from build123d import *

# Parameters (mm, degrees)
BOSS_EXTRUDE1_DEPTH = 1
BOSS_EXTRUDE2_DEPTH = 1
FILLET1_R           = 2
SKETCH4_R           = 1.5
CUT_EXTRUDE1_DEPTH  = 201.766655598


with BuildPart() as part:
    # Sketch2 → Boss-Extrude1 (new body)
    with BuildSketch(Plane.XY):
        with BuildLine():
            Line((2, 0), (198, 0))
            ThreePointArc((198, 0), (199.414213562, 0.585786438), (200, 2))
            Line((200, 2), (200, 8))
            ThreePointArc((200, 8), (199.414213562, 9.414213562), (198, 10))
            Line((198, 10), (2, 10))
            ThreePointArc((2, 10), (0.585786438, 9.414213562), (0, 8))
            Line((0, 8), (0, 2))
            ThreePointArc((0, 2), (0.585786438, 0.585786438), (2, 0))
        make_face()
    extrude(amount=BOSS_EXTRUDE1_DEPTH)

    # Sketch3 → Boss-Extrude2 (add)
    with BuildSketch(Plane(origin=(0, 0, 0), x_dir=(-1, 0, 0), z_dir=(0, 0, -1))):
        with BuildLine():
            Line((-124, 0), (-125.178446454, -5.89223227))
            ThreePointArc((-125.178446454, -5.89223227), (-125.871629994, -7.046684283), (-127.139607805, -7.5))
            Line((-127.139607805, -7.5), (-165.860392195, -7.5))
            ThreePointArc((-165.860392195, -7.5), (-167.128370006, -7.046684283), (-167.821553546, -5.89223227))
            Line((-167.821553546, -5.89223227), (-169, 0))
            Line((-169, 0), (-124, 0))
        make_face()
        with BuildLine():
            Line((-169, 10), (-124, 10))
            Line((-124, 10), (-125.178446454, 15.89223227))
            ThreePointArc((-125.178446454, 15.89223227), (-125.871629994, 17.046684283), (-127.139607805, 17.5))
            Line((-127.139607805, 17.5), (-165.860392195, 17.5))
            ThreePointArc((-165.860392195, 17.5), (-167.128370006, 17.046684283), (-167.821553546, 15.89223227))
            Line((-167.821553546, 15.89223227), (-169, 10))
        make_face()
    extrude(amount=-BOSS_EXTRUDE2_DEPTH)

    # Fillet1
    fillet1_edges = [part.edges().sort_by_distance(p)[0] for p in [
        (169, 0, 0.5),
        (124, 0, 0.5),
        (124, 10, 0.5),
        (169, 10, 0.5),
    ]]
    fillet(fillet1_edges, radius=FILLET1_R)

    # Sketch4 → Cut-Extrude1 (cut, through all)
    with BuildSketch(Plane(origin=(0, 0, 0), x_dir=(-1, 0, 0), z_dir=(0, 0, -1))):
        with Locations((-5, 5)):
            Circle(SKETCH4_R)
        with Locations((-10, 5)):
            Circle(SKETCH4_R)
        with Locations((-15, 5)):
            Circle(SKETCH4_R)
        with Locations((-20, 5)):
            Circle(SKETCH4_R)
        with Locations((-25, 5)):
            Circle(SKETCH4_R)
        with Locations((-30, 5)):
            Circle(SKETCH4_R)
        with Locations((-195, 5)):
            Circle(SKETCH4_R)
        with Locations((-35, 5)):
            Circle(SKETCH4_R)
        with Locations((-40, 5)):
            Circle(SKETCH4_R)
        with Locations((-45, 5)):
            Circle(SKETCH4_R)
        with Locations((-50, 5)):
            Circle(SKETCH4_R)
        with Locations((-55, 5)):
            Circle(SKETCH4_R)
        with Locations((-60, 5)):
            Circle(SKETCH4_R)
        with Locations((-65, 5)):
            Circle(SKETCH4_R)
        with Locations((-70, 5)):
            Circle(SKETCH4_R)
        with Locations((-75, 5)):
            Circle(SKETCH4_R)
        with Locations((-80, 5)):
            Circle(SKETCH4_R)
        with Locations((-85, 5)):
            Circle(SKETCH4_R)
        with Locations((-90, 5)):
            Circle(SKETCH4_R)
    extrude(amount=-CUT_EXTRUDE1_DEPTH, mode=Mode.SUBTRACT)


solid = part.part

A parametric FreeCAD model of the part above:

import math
import FreeCAD as App
import Part
import Sketcher
from FreeCAD import Vector
Q = App.Units.Quantity


def edges_at(feature, points):
    """Names of the edges that pass closest to the given points."""
    edges = feature.Shape.Edges
    near = lambda p: min(range(len(edges)), key=lambda i: edges[i].distToShape(Part.Vertex(*p))[0])
    return sorted({f"Edge{near(p) + 1}" for p in points})

doc = App.newDocument("Part")
body = doc.addObject("PartDesign::Body", "Body")

# Sketch on XY plane
sketch1 = doc.addObject("Sketcher::SketchObject", "Sketch")
body.addObject(sketch1)
sketch1.AttachmentSupport = (doc.XY_Plane, [""])
sketch1.MapMode = "FlatFace"
sketch1.addGeometry(Part.LineSegment(Vector(2, 0, 0), Vector(198, 0, 0)), False)
sketch1.addGeometry(Part.ArcOfCircle(Part.Circle(Vector(198, 2, 0), Vector(0, 0, 1), 2), math.radians(-90), math.radians(0)), False)
sketch1.addGeometry(Part.LineSegment(Vector(200, 2, 0), Vector(200, 8, 0)), False)
sketch1.addGeometry(Part.ArcOfCircle(Part.Circle(Vector(198, 8, 0), Vector(0, 0, 1), 2), math.radians(0), math.radians(90)), False)
sketch1.addGeometry(Part.LineSegment(Vector(198, 10, 0), Vector(2, 10, 0)), False)
sketch1.addGeometry(Part.ArcOfCircle(Part.Circle(Vector(2, 8, 0), Vector(0, 0, 1), 2), math.radians(90), math.radians(180)), False)
sketch1.addGeometry(Part.LineSegment(Vector(0, 8, 0), Vector(0, 2, 0)), False)
sketch1.addGeometry(Part.ArcOfCircle(Part.Circle(Vector(2, 2, 0), Vector(0, 0, 1), 2), math.radians(-180), math.radians(-90)), False)
sketch1.addConstraint(Sketcher.Constraint("Tangent", 0, 2, 1, 1))
sketch1.addConstraint(Sketcher.Constraint("Tangent", 1, 2, 2, 1))
sketch1.addConstraint(Sketcher.Constraint("Tangent", 2, 2, 3, 1))
sketch1.addConstraint(Sketcher.Constraint("Tangent", 3, 2, 4, 1))
sketch1.addConstraint(Sketcher.Constraint("Tangent", 4, 2, 5, 1))
sketch1.addConstraint(Sketcher.Constraint("Tangent", 5, 2, 6, 1))
sketch1.addConstraint(Sketcher.Constraint("Tangent", 6, 2, 7, 1))
sketch1.addConstraint(Sketcher.Constraint("Tangent", 7, 2, 0, 1))
sketch1.addConstraint(Sketcher.Constraint("Horizontal", 0))
sketch1.addConstraint(Sketcher.Constraint("Vertical", 2))
sketch1.addConstraint(Sketcher.Constraint("Horizontal", 4))
sketch1.addConstraint(Sketcher.Constraint("Vertical", 6))
sketch1.addConstraint(Sketcher.Constraint("Equal", 1, 3))
sketch1.addConstraint(Sketcher.Constraint("Equal", 3, 5))
sketch1.addConstraint(Sketcher.Constraint("Equal", 5, 7))
sketch1.addConstraint(Sketcher.Constraint("PointOnObject", 0, 2, -1))
sketch1.addConstraint(Sketcher.Constraint("PointOnObject", 5, 2, -2))
sketch1.addConstraint(Sketcher.Constraint("Radius", 1, Q("2 mm")))
sketch1.addConstraint(Sketcher.Constraint("DistanceX", 0, 1, 0, 2, Q("196 mm")))
sketch1.addConstraint(Sketcher.Constraint("DistanceY", 2, 1, 2, 2, Q("6 mm")))
pad1 = doc.addObject("PartDesign::Pad", "Pad")
body.addObject(pad1)
pad1.Profile = sketch1
pad1.Length = 1

# Sketch on XY plane
sketch2 = doc.addObject("Sketcher::SketchObject", "Sketch001")
body.addObject(sketch2)
sketch2.AttachmentSupport = (doc.XY_Plane, [""])
sketch2.MapMode = "FlatFace"
sketch2.addGeometry(Part.LineSegment(Vector(125.2, -5.9, 0), Vector(124, 0, 0)), False)
sketch2.addGeometry(Part.LineSegment(Vector(124, 0, 0), Vector(169, 0, 0)), False)
sketch2.addGeometry(Part.LineSegment(Vector(169, 0, 0), Vector(167.8, -5.9, 0)), False)
sketch2.addGeometry(Part.ArcOfCircle(Part.Circle(Vector(165.9, -5.5, 0), Vector(0, 0, 1), 2), math.radians(-90), math.radians(-11)), False)
sketch2.addGeometry(Part.LineSegment(Vector(165.9, -7.5, 0), Vector(127.1, -7.5, 0)), False)
sketch2.addGeometry(Part.ArcOfCircle(Part.Circle(Vector(127.1, -5.5, 0), Vector(0, 0, 1), 2), math.radians(-169), math.radians(-90)), False)
sketch2.addGeometry(Part.LineSegment(Vector(169, 10, 0), Vector(124, 10, 0)), False)
sketch2.addGeometry(Part.LineSegment(Vector(124, 10, 0), Vector(125.2, 15.9, 0)), False)
sketch2.addGeometry(Part.ArcOfCircle(Part.Circle(Vector(127.1, 15.5, 0), Vector(0, 0, 1), 2), math.radians(90), math.radians(169)), False)
sketch2.addGeometry(Part.LineSegment(Vector(127.1, 17.5, 0), Vector(165.9, 17.5, 0)), False)
sketch2.addGeometry(Part.ArcOfCircle(Part.Circle(Vector(165.9, 15.5, 0), Vector(0, 0, 1), 2), math.radians(11), math.radians(90)), False)
sketch2.addGeometry(Part.LineSegment(Vector(167.8, 15.9, 0), Vector(169, 10, 0)), False)
sketch2.addConstraint(Sketcher.Constraint("Coincident", 0, 2, 1, 1))
sketch2.addConstraint(Sketcher.Constraint("Coincident", 1, 2, 2, 1))
sketch2.addConstraint(Sketcher.Constraint("Tangent", 2, 2, 3, 2))
sketch2.addConstraint(Sketcher.Constraint("Tangent", 3, 1, 4, 1))
sketch2.addConstraint(Sketcher.Constraint("Tangent", 4, 2, 5, 2))
sketch2.addConstraint(Sketcher.Constraint("Tangent", 5, 1, 0, 1))
sketch2.addConstraint(Sketcher.Constraint("Coincident", 6, 2, 7, 1))
sketch2.addConstraint(Sketcher.Constraint("Tangent", 7, 2, 8, 2))
sketch2.addConstraint(Sketcher.Constraint("Tangent", 8, 1, 9, 1))
sketch2.addConstraint(Sketcher.Constraint("Tangent", 9, 2, 10, 2))
sketch2.addConstraint(Sketcher.Constraint("Tangent", 10, 1, 11, 1))
sketch2.addConstraint(Sketcher.Constraint("Coincident", 11, 2, 6, 1))
sketch2.addConstraint(Sketcher.Constraint("Horizontal", 1))
sketch2.addConstraint(Sketcher.Constraint("Horizontal", 4))
sketch2.addConstraint(Sketcher.Constraint("Horizontal", 6))
sketch2.addConstraint(Sketcher.Constraint("Horizontal", 9))
sketch2.addConstraint(Sketcher.Constraint("Equal", 3, 5))
sketch2.addConstraint(Sketcher.Constraint("Equal", 5, 8))
sketch2.addConstraint(Sketcher.Constraint("Equal", 8, 10))
sketch2.addConstraint(Sketcher.Constraint("PointOnObject", 0, 2, -1))
sketch2.addConstraint(Sketcher.Constraint("Parallel", 2, 7))
sketch2.addConstraint(Sketcher.Constraint("Parallel", 0, 11))
sketch2.addConstraint(Sketcher.Constraint("Horizontal", 2, 2, 5, 1))
sketch2.addConstraint(Sketcher.Constraint("Vertical", 5, 3, 8, 3))
sketch2.addConstraint(Sketcher.Constraint("Vertical", 3, 3, 10, 3))
sketch2.addConstraint(Sketcher.Constraint("Vertical", 0, 2, 6, 2))
sketch2.addConstraint(Sketcher.Constraint("Radius", 3, Q("2 mm")))
sketch2.addConstraint(Sketcher.Constraint("DistanceX", 1, 1, 1, 2, Q("45 mm")))
sketch2.addConstraint(Sketcher.Constraint("DistanceX", -1, 1, 0, 2, Q("124 mm")))
sketch2.addConstraint(Sketcher.Constraint("DistanceY", -1, 1, 6, 2, Q("10 mm")))
sketch2.addConstraint(Sketcher.Constraint("DistanceY", 5, 3, 8, 3, Q("21 mm")))
sketch2.addConstraint(Sketcher.Constraint("Distance", 0, Q("6.008921 mm")))
pad2 = doc.addObject("PartDesign::Pad", "Pad001")
body.addObject(pad2)
pad2.Profile = sketch2
pad2.Length = 1
doc.recompute()

fillet = doc.addObject("PartDesign::Fillet", "Fillet")
body.addObject(fillet)
fillet.Base = (pad2, edges_at(pad2, [
    (169, 0, 0.5),
    (124, 0, 0.5),
    (124, 10, 0.5),
    (169, 10, 0.5),
]))
fillet.Radius = 2

# Sketch on XY plane
sketch3 = doc.addObject("Sketcher::SketchObject", "Sketch002")
body.addObject(sketch3)
sketch3.AttachmentSupport = (doc.XY_Plane, [""])
sketch3.MapMode = "FlatFace"
sketch3.addGeometry(Part.Circle(Vector(5, 5, 0), Vector(0, 0, 1), 1.5), False)
sketch3.addGeometry(Part.Circle(Vector(10, 5, 0), Vector(0, 0, 1), 1.5), False)
sketch3.addGeometry(Part.Circle(Vector(15, 5, 0), Vector(0, 0, 1), 1.5), False)
sketch3.addGeometry(Part.Circle(Vector(20, 5, 0), Vector(0, 0, 1), 1.5), False)
sketch3.addGeometry(Part.Circle(Vector(25, 5, 0), Vector(0, 0, 1), 1.5), False)
sketch3.addGeometry(Part.Circle(Vector(30, 5, 0), Vector(0, 0, 1), 1.5), False)
sketch3.addGeometry(Part.Circle(Vector(195, 5, 0), Vector(0, 0, 1), 1.5), False)
sketch3.addGeometry(Part.Circle(Vector(35, 5, 0), Vector(0, 0, 1), 1.5), False)
sketch3.addGeometry(Part.Circle(Vector(40, 5, 0), Vector(0, 0, 1), 1.5), False)
sketch3.addGeometry(Part.Circle(Vector(45, 5, 0), Vector(0, 0, 1), 1.5), False)
sketch3.addGeometry(Part.Circle(Vector(50, 5, 0), Vector(0, 0, 1), 1.5), False)
sketch3.addGeometry(Part.Circle(Vector(55, 5, 0), Vector(0, 0, 1), 1.5), False)
sketch3.addGeometry(Part.Circle(Vector(60, 5, 0), Vector(0, 0, 1), 1.5), False)
sketch3.addGeometry(Part.Circle(Vector(65, 5, 0), Vector(0, 0, 1), 1.5), False)
sketch3.addGeometry(Part.Circle(Vector(70, 5, 0), Vector(0, 0, 1), 1.5), False)
sketch3.addGeometry(Part.Circle(Vector(75, 5, 0), Vector(0, 0, 1), 1.5), False)
sketch3.addGeometry(Part.Circle(Vector(80, 5, 0), Vector(0, 0, 1), 1.5), False)
sketch3.addGeometry(Part.Circle(Vector(85, 5, 0), Vector(0, 0, 1), 1.5), False)
sketch3.addGeometry(Part.Circle(Vector(90, 5, 0), Vector(0, 0, 1), 1.5), False)
sketch3.addConstraint(Sketcher.Constraint("Equal", 0, 1))
sketch3.addConstraint(Sketcher.Constraint("Equal", 1, 2))
sketch3.addConstraint(Sketcher.Constraint("Equal", 2, 3))
sketch3.addConstraint(Sketcher.Constraint("Equal", 3, 4))
sketch3.addConstraint(Sketcher.Constraint("Equal", 4, 5))
sketch3.addConstraint(Sketcher.Constraint("Equal", 5, 6))
sketch3.addConstraint(Sketcher.Constraint("Equal", 6, 7))
sketch3.addConstraint(Sketcher.Constraint("Equal", 7, 8))
sketch3.addConstraint(Sketcher.Constraint("Equal", 8, 9))
sketch3.addConstraint(Sketcher.Constraint("Equal", 9, 10))
sketch3.addConstraint(Sketcher.Constraint("Equal", 10, 11))
sketch3.addConstraint(Sketcher.Constraint("Equal", 11, 12))
sketch3.addConstraint(Sketcher.Constraint("Equal", 12, 13))
sketch3.addConstraint(Sketcher.Constraint("Equal", 13, 14))
sketch3.addConstraint(Sketcher.Constraint("Equal", 14, 15))
sketch3.addConstraint(Sketcher.Constraint("Equal", 15, 16))
sketch3.addConstraint(Sketcher.Constraint("Equal", 16, 17))
sketch3.addConstraint(Sketcher.Constraint("Equal", 17, 18))
sketch3.addConstraint(Sketcher.Constraint("Horizontal", 0, 3, 1, 3))
sketch3.addConstraint(Sketcher.Constraint("Horizontal", 1, 3, 2, 3))
sketch3.addConstraint(Sketcher.Constraint("Horizontal", 2, 3, 3, 3))
sketch3.addConstraint(Sketcher.Constraint("Horizontal", 3, 3, 4, 3))
sketch3.addConstraint(Sketcher.Constraint("Horizontal", 4, 3, 5, 3))
sketch3.addConstraint(Sketcher.Constraint("Horizontal", 5, 3, 6, 3))
sketch3.addConstraint(Sketcher.Constraint("Horizontal", 6, 3, 7, 3))
sketch3.addConstraint(Sketcher.Constraint("Horizontal", 7, 3, 8, 3))
sketch3.addConstraint(Sketcher.Constraint("Horizontal", 8, 3, 9, 3))
sketch3.addConstraint(Sketcher.Constraint("Horizontal", 9, 3, 10, 3))
sketch3.addConstraint(Sketcher.Constraint("Horizontal", 10, 3, 11, 3))
sketch3.addConstraint(Sketcher.Constraint("Horizontal", 11, 3, 12, 3))
sketch3.addConstraint(Sketcher.Constraint("Horizontal", 12, 3, 13, 3))
sketch3.addConstraint(Sketcher.Constraint("Horizontal", 13, 3, 14, 3))
sketch3.addConstraint(Sketcher.Constraint("Horizontal", 14, 3, 15, 3))
sketch3.addConstraint(Sketcher.Constraint("Horizontal", 15, 3, 16, 3))
sketch3.addConstraint(Sketcher.Constraint("Horizontal", 16, 3, 17, 3))
sketch3.addConstraint(Sketcher.Constraint("Horizontal", 17, 3, 18, 3))
sketch3.addConstraint(Sketcher.Constraint("Diameter", 0, Q("3 mm")))
sketch3.addConstraint(Sketcher.Constraint("DistanceX", -1, 1, 0, 3, Q("5 mm")))
sketch3.addConstraint(Sketcher.Constraint("DistanceY", -1, 1, 0, 3, Q("5 mm")))
sketch3.addConstraint(Sketcher.Constraint("DistanceX", -1, 1, 1, 3, Q("10 mm")))
sketch3.addConstraint(Sketcher.Constraint("DistanceX", -1, 1, 2, 3, Q("15 mm")))
sketch3.addConstraint(Sketcher.Constraint("DistanceX", -1, 1, 3, 3, Q("20 mm")))
sketch3.addConstraint(Sketcher.Constraint("DistanceX", -1, 1, 4, 3, Q("25 mm")))
sketch3.addConstraint(Sketcher.Constraint("DistanceX", -1, 1, 5, 3, Q("30 mm")))
sketch3.addConstraint(Sketcher.Constraint("DistanceX", -1, 1, 6, 3, Q("195 mm")))
sketch3.addConstraint(Sketcher.Constraint("DistanceX", -1, 1, 7, 3, Q("35 mm")))
sketch3.addConstraint(Sketcher.Constraint("DistanceX", -1, 1, 8, 3, Q("40 mm")))
sketch3.addConstraint(Sketcher.Constraint("DistanceX", -1, 1, 9, 3, Q("45 mm")))
sketch3.addConstraint(Sketcher.Constraint("DistanceX", -1, 1, 10, 3, Q("50 mm")))
sketch3.addConstraint(Sketcher.Constraint("DistanceX", -1, 1, 11, 3, Q("55 mm")))
sketch3.addConstraint(Sketcher.Constraint("DistanceX", -1, 1, 12, 3, Q("60 mm")))
sketch3.addConstraint(Sketcher.Constraint("DistanceX", -1, 1, 13, 3, Q("65 mm")))
sketch3.addConstraint(Sketcher.Constraint("DistanceX", -1, 1, 14, 3, Q("70 mm")))
sketch3.addConstraint(Sketcher.Constraint("DistanceX", -1, 1, 15, 3, Q("75 mm")))
sketch3.addConstraint(Sketcher.Constraint("DistanceX", -1, 1, 16, 3, Q("80 mm")))
sketch3.addConstraint(Sketcher.Constraint("DistanceX", -1, 1, 17, 3, Q("85 mm")))
sketch3.addConstraint(Sketcher.Constraint("DistanceX", -1, 1, 18, 3, Q("90 mm")))
pocket1 = doc.addObject("PartDesign::Pocket", "Pocket")
body.addObject(pocket1)
pocket1.Profile = sketch3
pocket1.Type = "ThroughAll"
pocket1.Reversed = True

doc.recompute()
